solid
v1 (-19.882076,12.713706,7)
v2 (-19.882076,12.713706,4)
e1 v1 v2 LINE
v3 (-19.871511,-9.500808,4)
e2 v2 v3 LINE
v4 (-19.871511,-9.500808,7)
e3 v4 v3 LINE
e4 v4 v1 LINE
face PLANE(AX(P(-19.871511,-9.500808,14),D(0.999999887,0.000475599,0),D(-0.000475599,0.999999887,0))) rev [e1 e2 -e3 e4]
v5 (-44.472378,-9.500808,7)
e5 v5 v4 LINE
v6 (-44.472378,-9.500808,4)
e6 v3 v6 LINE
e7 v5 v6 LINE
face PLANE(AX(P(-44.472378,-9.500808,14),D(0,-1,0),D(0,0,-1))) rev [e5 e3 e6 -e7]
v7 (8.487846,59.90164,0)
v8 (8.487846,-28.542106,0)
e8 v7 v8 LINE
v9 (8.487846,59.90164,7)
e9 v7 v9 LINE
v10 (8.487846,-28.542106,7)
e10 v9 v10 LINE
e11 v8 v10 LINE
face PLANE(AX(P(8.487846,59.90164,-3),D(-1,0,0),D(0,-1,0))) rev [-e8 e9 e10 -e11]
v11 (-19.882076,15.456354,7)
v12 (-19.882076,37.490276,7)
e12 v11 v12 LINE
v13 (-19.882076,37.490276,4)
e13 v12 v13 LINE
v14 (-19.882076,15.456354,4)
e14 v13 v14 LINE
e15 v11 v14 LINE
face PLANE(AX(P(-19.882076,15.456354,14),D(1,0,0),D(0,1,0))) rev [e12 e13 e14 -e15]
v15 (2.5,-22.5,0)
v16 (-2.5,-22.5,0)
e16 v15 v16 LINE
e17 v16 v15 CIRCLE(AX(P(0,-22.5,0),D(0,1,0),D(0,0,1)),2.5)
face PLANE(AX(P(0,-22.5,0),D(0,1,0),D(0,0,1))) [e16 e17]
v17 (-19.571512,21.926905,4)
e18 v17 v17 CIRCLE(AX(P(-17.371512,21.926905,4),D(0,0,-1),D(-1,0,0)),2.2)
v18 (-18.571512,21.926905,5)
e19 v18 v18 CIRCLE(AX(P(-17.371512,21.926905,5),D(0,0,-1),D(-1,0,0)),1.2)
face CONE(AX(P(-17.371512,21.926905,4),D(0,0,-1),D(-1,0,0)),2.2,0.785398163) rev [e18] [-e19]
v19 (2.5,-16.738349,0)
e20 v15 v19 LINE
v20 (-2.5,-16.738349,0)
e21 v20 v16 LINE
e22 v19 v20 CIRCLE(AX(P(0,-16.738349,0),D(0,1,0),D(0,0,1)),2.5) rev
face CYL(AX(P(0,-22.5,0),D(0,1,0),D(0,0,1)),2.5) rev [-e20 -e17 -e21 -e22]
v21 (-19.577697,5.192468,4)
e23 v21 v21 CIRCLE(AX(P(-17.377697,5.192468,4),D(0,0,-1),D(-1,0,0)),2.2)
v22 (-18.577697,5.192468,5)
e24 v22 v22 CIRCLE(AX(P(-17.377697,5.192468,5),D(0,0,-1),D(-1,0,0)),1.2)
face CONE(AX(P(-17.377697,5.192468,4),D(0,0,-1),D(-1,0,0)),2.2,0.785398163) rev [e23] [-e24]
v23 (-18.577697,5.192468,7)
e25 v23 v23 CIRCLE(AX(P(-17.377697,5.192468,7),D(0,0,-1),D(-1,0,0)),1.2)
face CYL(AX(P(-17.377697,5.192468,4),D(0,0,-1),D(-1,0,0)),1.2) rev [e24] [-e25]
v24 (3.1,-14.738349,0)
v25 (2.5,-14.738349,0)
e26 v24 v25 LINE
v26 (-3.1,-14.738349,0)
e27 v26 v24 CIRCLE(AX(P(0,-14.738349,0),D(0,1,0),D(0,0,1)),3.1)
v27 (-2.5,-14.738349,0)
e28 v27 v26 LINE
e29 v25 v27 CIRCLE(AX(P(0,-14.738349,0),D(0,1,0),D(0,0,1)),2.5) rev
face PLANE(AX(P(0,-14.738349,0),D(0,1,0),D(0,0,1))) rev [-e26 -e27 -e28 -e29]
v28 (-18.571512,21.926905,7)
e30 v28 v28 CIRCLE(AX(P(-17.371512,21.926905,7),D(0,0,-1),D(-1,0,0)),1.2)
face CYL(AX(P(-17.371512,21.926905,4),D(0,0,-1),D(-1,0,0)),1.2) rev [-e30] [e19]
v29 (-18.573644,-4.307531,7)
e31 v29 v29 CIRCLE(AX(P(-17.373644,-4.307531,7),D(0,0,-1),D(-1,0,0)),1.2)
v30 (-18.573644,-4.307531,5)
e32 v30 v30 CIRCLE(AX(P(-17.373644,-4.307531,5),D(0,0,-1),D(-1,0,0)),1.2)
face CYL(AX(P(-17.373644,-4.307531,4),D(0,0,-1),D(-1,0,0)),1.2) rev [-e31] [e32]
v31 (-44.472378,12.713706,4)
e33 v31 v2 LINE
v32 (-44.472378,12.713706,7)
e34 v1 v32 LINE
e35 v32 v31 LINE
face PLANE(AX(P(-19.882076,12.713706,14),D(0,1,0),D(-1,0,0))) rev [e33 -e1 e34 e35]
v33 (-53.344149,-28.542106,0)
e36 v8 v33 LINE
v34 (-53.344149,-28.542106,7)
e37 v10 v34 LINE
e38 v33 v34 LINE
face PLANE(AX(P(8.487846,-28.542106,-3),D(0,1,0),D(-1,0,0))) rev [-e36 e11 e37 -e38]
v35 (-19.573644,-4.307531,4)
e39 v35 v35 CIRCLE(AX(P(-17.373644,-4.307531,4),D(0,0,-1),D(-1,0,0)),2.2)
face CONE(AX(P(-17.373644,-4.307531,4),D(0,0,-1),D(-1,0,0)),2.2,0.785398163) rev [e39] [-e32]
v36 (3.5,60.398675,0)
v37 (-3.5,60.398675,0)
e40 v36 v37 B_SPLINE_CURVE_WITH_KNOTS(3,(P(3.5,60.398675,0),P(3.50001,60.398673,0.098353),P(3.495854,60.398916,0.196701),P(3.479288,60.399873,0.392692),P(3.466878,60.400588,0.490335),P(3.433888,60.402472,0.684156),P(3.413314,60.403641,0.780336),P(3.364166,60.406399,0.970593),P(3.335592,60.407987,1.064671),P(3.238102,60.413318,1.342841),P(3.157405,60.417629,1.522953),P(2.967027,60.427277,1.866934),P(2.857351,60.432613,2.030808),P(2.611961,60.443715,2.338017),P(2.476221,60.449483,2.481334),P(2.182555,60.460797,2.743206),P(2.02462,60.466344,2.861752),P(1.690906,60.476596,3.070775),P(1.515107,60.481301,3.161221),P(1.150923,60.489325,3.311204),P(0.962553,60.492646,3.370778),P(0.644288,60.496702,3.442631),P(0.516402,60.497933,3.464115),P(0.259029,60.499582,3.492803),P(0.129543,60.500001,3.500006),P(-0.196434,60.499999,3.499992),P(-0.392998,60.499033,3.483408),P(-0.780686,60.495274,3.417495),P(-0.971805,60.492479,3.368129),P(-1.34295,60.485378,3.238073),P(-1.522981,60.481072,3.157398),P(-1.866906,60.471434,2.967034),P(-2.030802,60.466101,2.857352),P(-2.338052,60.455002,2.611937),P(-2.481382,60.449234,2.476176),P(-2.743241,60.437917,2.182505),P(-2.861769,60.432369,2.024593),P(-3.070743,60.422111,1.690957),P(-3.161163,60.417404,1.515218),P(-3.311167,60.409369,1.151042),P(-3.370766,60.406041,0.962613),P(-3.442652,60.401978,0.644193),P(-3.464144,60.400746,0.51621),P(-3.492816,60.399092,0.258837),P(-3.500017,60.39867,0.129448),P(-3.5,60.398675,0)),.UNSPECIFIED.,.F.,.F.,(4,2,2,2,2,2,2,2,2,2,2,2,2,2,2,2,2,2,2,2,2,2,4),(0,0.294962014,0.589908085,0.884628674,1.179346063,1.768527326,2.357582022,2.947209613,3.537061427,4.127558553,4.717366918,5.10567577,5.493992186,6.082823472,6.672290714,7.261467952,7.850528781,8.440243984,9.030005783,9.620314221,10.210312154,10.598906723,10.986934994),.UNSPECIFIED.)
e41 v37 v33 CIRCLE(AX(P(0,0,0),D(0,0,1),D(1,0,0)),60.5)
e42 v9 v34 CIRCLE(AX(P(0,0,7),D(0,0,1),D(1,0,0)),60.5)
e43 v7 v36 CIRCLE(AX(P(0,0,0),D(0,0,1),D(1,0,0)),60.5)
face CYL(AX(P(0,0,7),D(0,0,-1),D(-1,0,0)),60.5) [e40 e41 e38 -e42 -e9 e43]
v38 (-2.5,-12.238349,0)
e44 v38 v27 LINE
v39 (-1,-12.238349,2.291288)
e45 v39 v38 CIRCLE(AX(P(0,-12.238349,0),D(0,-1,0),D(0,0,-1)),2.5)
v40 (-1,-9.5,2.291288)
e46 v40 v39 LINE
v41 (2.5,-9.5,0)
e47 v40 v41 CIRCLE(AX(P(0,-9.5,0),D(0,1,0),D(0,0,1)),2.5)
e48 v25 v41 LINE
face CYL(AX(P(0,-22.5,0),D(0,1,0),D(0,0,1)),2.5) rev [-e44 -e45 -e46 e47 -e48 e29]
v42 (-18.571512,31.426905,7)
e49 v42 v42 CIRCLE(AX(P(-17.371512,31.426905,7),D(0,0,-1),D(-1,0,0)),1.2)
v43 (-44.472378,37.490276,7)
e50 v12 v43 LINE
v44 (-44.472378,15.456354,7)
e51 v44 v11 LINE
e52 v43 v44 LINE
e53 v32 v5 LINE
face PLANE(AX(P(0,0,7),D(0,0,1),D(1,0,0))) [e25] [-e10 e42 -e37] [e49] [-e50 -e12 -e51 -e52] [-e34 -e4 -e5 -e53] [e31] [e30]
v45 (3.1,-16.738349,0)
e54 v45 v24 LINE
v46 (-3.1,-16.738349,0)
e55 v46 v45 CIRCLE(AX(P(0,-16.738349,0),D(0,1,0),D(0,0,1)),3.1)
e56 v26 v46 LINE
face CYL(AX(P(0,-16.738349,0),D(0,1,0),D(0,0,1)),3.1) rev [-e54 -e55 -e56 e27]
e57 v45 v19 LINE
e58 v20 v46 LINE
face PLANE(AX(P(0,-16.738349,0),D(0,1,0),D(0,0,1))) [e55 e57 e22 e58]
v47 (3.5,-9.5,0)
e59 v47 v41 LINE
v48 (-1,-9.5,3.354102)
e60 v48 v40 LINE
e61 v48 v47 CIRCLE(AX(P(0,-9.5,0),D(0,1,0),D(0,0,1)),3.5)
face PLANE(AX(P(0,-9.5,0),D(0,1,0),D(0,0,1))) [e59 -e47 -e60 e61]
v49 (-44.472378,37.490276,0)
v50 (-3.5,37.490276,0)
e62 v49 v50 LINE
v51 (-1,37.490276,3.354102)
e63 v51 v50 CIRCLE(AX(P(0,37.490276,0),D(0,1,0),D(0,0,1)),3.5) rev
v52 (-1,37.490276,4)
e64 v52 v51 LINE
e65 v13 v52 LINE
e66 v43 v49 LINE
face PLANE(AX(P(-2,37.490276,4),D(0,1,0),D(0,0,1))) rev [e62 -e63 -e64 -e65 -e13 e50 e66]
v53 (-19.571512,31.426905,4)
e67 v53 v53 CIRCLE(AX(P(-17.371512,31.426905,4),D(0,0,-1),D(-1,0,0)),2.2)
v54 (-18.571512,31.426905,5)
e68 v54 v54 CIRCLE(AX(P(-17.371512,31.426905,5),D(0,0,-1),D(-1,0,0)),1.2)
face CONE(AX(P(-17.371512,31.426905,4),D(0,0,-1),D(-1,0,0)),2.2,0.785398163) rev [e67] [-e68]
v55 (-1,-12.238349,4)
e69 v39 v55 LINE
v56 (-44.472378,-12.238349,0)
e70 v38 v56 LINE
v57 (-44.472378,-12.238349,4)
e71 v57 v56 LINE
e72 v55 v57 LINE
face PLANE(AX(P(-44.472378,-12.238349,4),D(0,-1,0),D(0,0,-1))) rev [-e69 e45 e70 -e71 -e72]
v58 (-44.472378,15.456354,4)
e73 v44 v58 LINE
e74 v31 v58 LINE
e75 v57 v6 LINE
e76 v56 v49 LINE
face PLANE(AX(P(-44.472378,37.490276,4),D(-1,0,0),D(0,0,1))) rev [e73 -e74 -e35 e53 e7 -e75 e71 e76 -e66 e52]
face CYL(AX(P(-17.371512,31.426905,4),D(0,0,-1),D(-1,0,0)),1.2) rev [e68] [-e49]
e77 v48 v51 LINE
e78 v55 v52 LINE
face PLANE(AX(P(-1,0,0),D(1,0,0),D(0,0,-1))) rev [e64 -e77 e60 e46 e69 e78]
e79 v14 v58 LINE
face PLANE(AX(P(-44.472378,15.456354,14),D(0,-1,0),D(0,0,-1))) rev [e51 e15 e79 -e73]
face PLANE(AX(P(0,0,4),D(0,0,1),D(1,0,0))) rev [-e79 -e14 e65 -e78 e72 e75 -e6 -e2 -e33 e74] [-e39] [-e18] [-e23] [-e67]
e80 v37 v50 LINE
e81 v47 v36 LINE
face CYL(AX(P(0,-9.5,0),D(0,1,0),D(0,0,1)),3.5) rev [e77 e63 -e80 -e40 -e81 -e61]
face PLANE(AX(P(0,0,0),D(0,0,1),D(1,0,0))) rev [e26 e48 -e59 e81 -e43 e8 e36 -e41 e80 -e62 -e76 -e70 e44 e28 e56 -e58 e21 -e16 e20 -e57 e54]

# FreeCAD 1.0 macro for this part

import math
import FreeCAD as App
import Part
import Sketcher
from FreeCAD import Vector

doc = App.newDocument("Part")
body = doc.addObject("PartDesign::Body", "Body")

# Sketch on XY plane
sketch1 = body.newObject("Sketcher::SketchObject", "Sketch")
sketch1.AttachmentSupport = (doc.getObject("XY_Plane"), [""])
sketch1.MapMode = "FlatFace"
sketch1.addGeometry(Part.Circle(Vector(0, 0, 0), Vector(0, 0, 1), 60.5), False)
sketch1.addConstraint(Sketcher.Constraint("Coincident", 0, 3, -1, 1))
sketch1.addConstraint(Sketcher.Constraint("Diameter", 0, 121.0))
pad1 = body.newObject("PartDesign::Pad", "Pad")
pad1.Profile = sketch1
pad1.Length = 7

# Sketch on XZ plane
sketch2 = body.newObject("Sketcher::SketchObject", "Sketch001")
sketch2.AttachmentSupport = (doc.getObject("XZ_Plane"), [""])
sketch2.MapMode = "FlatFace"
sketch2.AttachmentOffset = App.Placement(Vector(0, 0, -60.5), App.Rotation())
sketch2.addGeometry(Part.Circle(Vector(0, 0, 0), Vector(0, 0, 1), 3.5), False)
sketch2.addConstraint(Sketcher.Constraint("Coincident", 0, 3, -1, 1))
sketch2.addConstraint(Sketcher.Constraint("Diameter", 0, 7.0))
pocket1 = body.newObject("PartDesign::Pocket", "Pocket")
pocket1.Profile = sketch2
pocket1.Length = 70
pocket1.Reversed = True

# Sketch on XY plane
sketch3 = body.newObject("Sketcher::SketchObject", "Sketch002")
sketch3.AttachmentSupport = (doc.getObject("XY_Plane"), [""])
sketch3.MapMode = "FlatFace"
sketch3.AttachmentOffset = App.Placement(Vector(0, 0, 7), App.Rotation())
sketch3.addGeometry(Part.LineSegment(Vector(8.487846, 59.90164, 0), Vector(8.487846, -28.542106, 0)), False)
sketch3.addGeometry(Part.LineSegment(Vector(8.487846, -28.542106, 0), Vector(-53.344149, -28.542106, 0)), False)
sketch3.addGeometry(Part.ArcOfCircle(Part.Circle(Vector(38.066058, -26.6124, 0), Vector(0, 0, 1), 91.430573), math.radians(-178.790643), math.radians(108.875002)), False)
sketch3.addConstraint(Sketcher.Constraint("Coincident", 0, 2, 1, 1))
sketch3.addConstraint(Sketcher.Constraint("Coincident", 1, 2, 2, 1))
sketch3.addConstraint(Sketcher.Constraint("Coincident", 2, 2, 0, 1))
sketch3.addConstraint(Sketcher.Constraint("Vertical", 0))
sketch3.addConstraint(Sketcher.Constraint("Horizontal", 1))
sketch3.addConstraint(Sketcher.Constraint("Radius", 2, 91.430573))
sketch3.addConstraint(Sketcher.Constraint("DistanceY", 2, 3, -1, 1, 26.6124))
sketch3.addConstraint(Sketcher.Constraint("DistanceX", 1, 2, 1, 1, 61.831995))
sketch3.addConstraint(Sketcher.Constraint("DistanceY", 0, 2, 0, 1, 88.443746))
sketch3.addConstraint(Sketcher.Constraint("DistanceX", -1, 1, 2, 3, 38.066058))
pocket2 = body.newObject("PartDesign::Pocket", "Pocket001")
pocket2.Profile = sketch3
pocket2.Length = 10

# Sketch on XY plane
sketch4 = body.newObject("Sketcher::SketchObject", "Sketch003")
sketch4.AttachmentSupport = (doc.getObject("XY_Plane"), [""])
sketch4.MapMode = "FlatFace"
sketch4.addGeometry(Part.LineSegment(Vector(-44.472378, -12.238349, 0), Vector(-44.472378, 37.490276, 0)), False)
sketch4.addGeometry(Part.LineSegment(Vector(-44.472378, 37.490276, 0), Vector(-2, 37.490276, 0)), False)
sketch4.addGeometry(Part.LineSegment(Vector(-2, 37.490276, 0), Vector(-2, -12.238349, 0)), False)
sketch4.addGeometry(Part.LineSegment(Vector(-2, -12.238349, 0), Vector(-44.472378, -12.238349, 0)), False)
sketch4.addConstraint(Sketcher.Constraint("Coincident", 0, 2, 1, 1))
sketch4.addConstraint(Sketcher.Constraint("Coincident", 1, 2, 2, 1))
sketch4.addConstraint(Sketcher.Constraint("Coincident", 2, 2, 3, 1))
sketch4.addConstraint(Sketcher.Constraint("Coincident", 3, 2, 0, 1))
sketch4.addConstraint(Sketcher.Constraint("Vertical", 0))
sketch4.addConstraint(Sketcher.Constraint("Horizontal", 1))
sketch4.addConstraint(Sketcher.Constraint("Vertical", 2))
sketch4.addConstraint(Sketcher.Constraint("Horizontal", 3))
sketch4.addConstraint(Sketcher.Constraint("DistanceX", 1, 2, -1, 1, 2.0))
sketch4.addConstraint(Sketcher.Constraint("DistanceX", 1, 1, 1, 2, 42.472378))
sketch4.addConstraint(Sketcher.Constraint("DistanceY", 0, 1, 0, 2, 49.728625))
sketch4.addConstraint(Sketcher.Constraint("DistanceY", 2, 2, -1, 1, 12.238349))
pocket3 = body.newObject("PartDesign::Pocket", "Pocket002")
pocket3.Profile = sketch4
pocket3.Length = 4
pocket3.Reversed = True

# Sketch on YZ plane
sketch5 = body.newObject("Sketcher::SketchObject", "Sketch004")
sketch5.AttachmentSupport = (doc.getObject("YZ_Plane"), [""])
sketch5.MapMode = "FlatFace"
sketch5.AttachmentOffset = App.Placement(Vector(0, 0, -2), App.Rotation())
sketch5.addGeometry(Part.LineSegment(Vector(37.490276, 4, 0), Vector(37.490276, 2.872281, 0)), False)
sketch5.addGeometry(Part.LineSegment(Vector(37.490276, 2.872281, 0), Vector(-12.238349, 2.872281, 0)), False)
sketch5.addGeometry(Part.LineSegment(Vector(-12.238349, 2.872281, 0), Vector(-12.238349, 4, 0)), False)
sketch5.addGeometry(Part.LineSegment(Vector(-12.238349, 4, 0), Vector(37.490276, 4, 0)), False)
sketch5.addConstraint(Sketcher.Constraint("Coincident", 0, 2, 1, 1))
sketch5.addConstraint(Sketcher.Constraint("Coincident", 1, 2, 2, 1))
sketch5.addConstraint(Sketcher.Constraint("Coincident", 2, 2, 3, 1))
sketch5.addConstraint(Sketcher.Constraint("Coincident", 3, 2, 0, 1))
sketch5.addConstraint(Sketcher.Constraint("Vertical", 0))
sketch5.addConstraint(Sketcher.Constraint("Horizontal", 1))
sketch5.addConstraint(Sketcher.Constraint("Vertical", 2))
sketch5.addConstraint(Sketcher.Constraint("Horizontal", 3))
sketch5.addConstraint(Sketcher.Constraint("DistanceY", -1, 1, 2, 2, 4.0))
sketch5.addConstraint(Sketcher.Constraint("DistanceY", 0, 2, 0, 1, 1.127719))
sketch5.addConstraint(Sketcher.Constraint("DistanceX", 1, 2, 1, 1, 49.728625))
sketch5.addConstraint(Sketcher.Constraint("DistanceX", 1, 2, -1, 1, 12.238349))
pocket4 = body.newObject("PartDesign::Pocket", "Pocket003")
pocket4.Profile = sketch5
pocket4.Length = 1
pocket4.Reversed = True

# Sketch on XY plane
sketch6 = body.newObject("Sketcher::SketchObject", "Sketch005")
sketch6.AttachmentSupport = (doc.getObject("XY_Plane"), [""])
sketch6.MapMode = "FlatFace"
sketch6.AttachmentOffset = App.Placement(Vector(0, 0, 4), App.Rotation())
sketch6.addGeometry(Part.Circle(Vector(-17.373644, -4.307531, 0), Vector(0, 0, 1), 1.2), False)
sketch6.addGeometry(Part.Circle(Vector(-17.377697, 5.192468, 0), Vector(0, 0, 1), 1.2), False)
sketch6.addGeometry(Part.Circle(Vector(-17.371512, 21.926905, 0), Vector(0, 0, 1), 1.2), False)
sketch6.addGeometry(Part.Circle(Vector(-17.371512, 31.426905, 0), Vector(0, 0, 1), 1.2), False)
sketch6.addConstraint(Sketcher.Constraint("Equal", 0, 1))
sketch6.addConstraint(Sketcher.Constraint("Equal", 1, 2))
sketch6.addConstraint(Sketcher.Constraint("Equal", 2, 3))
sketch6.addConstraint(Sketcher.Constraint("Vertical", 2, 3, 3, 3))
sketch6.addConstraint(Sketcher.Constraint("Diameter", 0, 2.4))
sketch6.addConstraint(Sketcher.Constraint("DistanceY", 0, 3, 1, 3, 9.499999))
sketch6.addConstraint(Sketcher.Constraint("DistanceY", 2, 3, 3, 3, 9.5))
sketch6.addConstraint(Sketcher.Constraint("DistanceY", 0, 3, -1, 1, 4.307531))
sketch6.addConstraint(Sketcher.Constraint("DistanceX", 0, 3, 2, 3, 0.002132))
sketch6.addConstraint(Sketcher.Constraint("DistanceX", 0, 3, -1, 1, 17.373644))
sketch6.addConstraint(Sketcher.Constraint("DistanceX", 1, 3, -1, 1, 17.377697))
sketch6.addConstraint(Sketcher.Constraint("DistanceY", -1, 1, 2, 3, 21.926905))
doc.recompute()
hole = body.newObject("PartDesign::Hole", "Hole")
hole.Profile = sketch6
hole.ThreadType = "None"
hole.Diameter = 2.4
hole.DepthType = "ThroughAll"
hole.HoleCutType = "Countersink"
hole.HoleCutDiameter = 4.4
hole.HoleCutCountersinkAngle = 90
hole.Reversed = True

# Sketch on XY plane
sketch7 = body.newObject("Sketcher::SketchObject", "Sketch006")
sketch7.AttachmentSupport = (doc.getObject("XY_Plane"), [""])
sketch7.MapMode = "FlatFace"
sketch7.AttachmentOffset = App.Placement(Vector(0, 0, 4), App.Rotation())
sketch7.addGeometry(Part.LineSegment(Vector(-44.472378, 15.456354, 0), Vector(-44.472378, 37.490276, 0)), False)
sketch7.addGeometry(Part.LineSegment(Vector(-44.472378, 37.490276, 0), Vector(-19.882076, 37.490276, 0)), False)
sketch7.addGeometry(Part.LineSegment(Vector(-19.882076, 37.490276, 0), Vector(-19.882076, 15.456354, 0)), False)
sketch7.addGeometry(Part.LineSegment(Vector(-19.882076, 15.456354, 0), Vector(-44.472378, 15.456354, 0)), False)
sketch7.addGeometry(Part.LineSegment(Vector(-44.472378, 12.713706, 0), Vector(-19.882076, 12.713706, 0)), False)
sketch7.addGeometry(Part.LineSegment(Vector(-19.882076, 12.713706, 0), Vector(-19.871511, -9.500808, 0)), False)
sketch7.addGeometry(Part.LineSegment(Vector(-19.871511, -9.500808, 0), Vector(-44.472378, -9.500808, 0)), False)
sketch7.addGeometry(Part.LineSegment(Vector(-44.472378, -9.500808, 0), Vector(-44.472378, 12.713706, 0)), False)
sketch7.addConstraint(Sketcher.Constraint("Coincident", 0, 2, 1, 1))
sketch7.addConstraint(Sketcher.Constraint("Coincident", 1, 2, 2, 1))
sketch7.addConstraint(Sketcher.Constraint("Coincident", 2, 2, 3, 1))
sketch7.addConstraint(Sketcher.Constraint("Coincident", 3, 2, 0, 1))
sketch7.addConstraint(Sketcher.Constraint("Coincident", 4, 2, 5, 1))
sketch7.addConstraint(Sketcher.Constraint("Coincident", 5, 2, 6, 1))
sketch7.addConstraint(Sketcher.Constraint("Coincident", 6, 2, 7, 1))
sketch7.addConstraint(Sketcher.Constraint("Coincident", 7, 2, 4, 1))
sketch7.addConstraint(Sketcher.Constraint("Vertical", 0))
sketch7.addConstraint(Sketcher.Constraint("Horizontal", 1))
sketch7.addConstraint(Sketcher.Constraint("Vertical", 2))
sketch7.addConstraint(Sketcher.Constraint("Horizontal", 3))
sketch7.addConstraint(Sketcher.Constraint("Horizontal", 4))
sketch7.addConstraint(Sketcher.Constraint("Horizontal", 6))
sketch7.addConstraint(Sketcher.Constraint("Vertical", 7))
sketch7.addConstraint(Sketcher.Constraint("Vertical", 2, 2, 4, 2))
sketch7.addConstraint(Sketcher.Constraint("Vertical", 3, 2, 6, 2))
sketch7.addConstraint(Sketcher.Constraint("DistanceX", 1, 1, 1, 2, 24.590302))
sketch7.addConstraint(Sketcher.Constraint("DistanceY", 0, 1, 0, 2, 22.033921))
sketch7.addConstraint(Sketcher.Constraint("DistanceX", 6, 2, 6, 1, 24.600867))
sketch7.addConstraint(Sketcher.Constraint("DistanceY", 7, 1, 7, 2, 22.214513))
sketch7.addConstraint(Sketcher.Constraint("DistanceX", 5, 2, -1, 1, 19.871511))
sketch7.addConstraint(Sketcher.Constraint("DistanceY", 4, 2, 2, 2, 2.742649))
sketch7.addConstraint(Sketcher.Constraint("DistanceY", -1, 1, 0, 2, 37.490276))
pocket5 = body.newObject("PartDesign::Pocket", "Pocket004")
pocket5.Profile = sketch7
pocket5.Length = 10
pocket5.Reversed = True

# Sketch on XZ plane
sketch8 = body.newObject("Sketcher::SketchObject", "Sketch007")
sketch8.AttachmentSupport = (doc.getObject("XZ_Plane"), [""])
sketch8.MapMode = "FlatFace"
sketch8.AttachmentOffset = App.Placement(Vector(0, 0, 9.5), App.Rotation())
sketch8.addGeometry(Part.Circle(Vector(0, 0, 0), Vector(0, 0, 1), 2.5), False)
sketch8.addConstraint(Sketcher.Constraint("Coincident", 0, 3, -1, 1))
sketch8.addConstraint(Sketcher.Constraint("Diameter", 0, 5.0))
pocket6 = body.newObject("PartDesign::Pocket", "Pocket005")
pocket6.Profile = sketch8
pocket6.Length = 13
pocket6.Reversed = True

# Sketch on XZ plane
sketch9 = body.newObject("Sketcher::SketchObject", "Sketch008")
sketch9.AttachmentSupport = (doc.getObject("XZ_Plane"), [""])
sketch9.MapMode = "FlatFace"
sketch9.AttachmentOffset = App.Placement(Vector(0, 0, 15.738349), App.Rotation())
sketch9.addGeometry(Part.Circle(Vector(0, 0, 0), Vector(0, 0, 1), 3.1), False)
sketch9.addConstraint(Sketcher.Constraint("Coincident", 0, 3, -1, 1))
sketch9.addConstraint(Sketcher.Constraint("Diameter", 0, 6.2))
pocket7 = body.newObject("PartDesign::Pocket", "Pocket006")
pocket7.Profile = sketch9
pocket7.Length = 2
pocket7.Midplane = True

# Sketch on YZ plane
sketch10 = body.newObject("Sketcher::SketchObject", "Sketch009")
sketch10.AttachmentSupport = (doc.getObject("YZ_Plane"), [""])
sketch10.MapMode = "FlatFace"
sketch10.AttachmentOffset = App.Placement(Vector(0, 0, -2), App.Rotation())
sketch10.addGeometry(Part.LineSegment(Vector(-9.5, 2.872281, 0), Vector(-9.5, 1.5, 0)), False)
sketch10.addGeometry(Part.LineSegment(Vector(-9.5, 1.5, 0), Vector(-12.238349, 1.5, 0)), False)
sketch10.addGeometry(Part.LineSegment(Vector(-12.238349, 1.5, 0), Vector(-12.238349, 2.872281, 0)), False)
sketch10.addGeometry(Part.LineSegment(Vector(-12.238349, 2.872281, 0), Vector(-9.5, 2.872281, 0)), False)
sketch10.addConstraint(Sketcher.Constraint("Coincident", 0, 2, 1, 1))
sketch10.addConstraint(Sketcher.Constraint("Coincident", 1, 2, 2, 1))
sketch10.addConstraint(Sketcher.Constraint("Coincident", 2, 2, 3, 1))
sketch10.addConstraint(Sketcher.Constraint("Coincident", 3, 2, 0, 1))
sketch10.addConstraint(Sketcher.Constraint("Vertical", 0))
sketch10.addConstraint(Sketcher.Constraint("Horizontal", 1))
sketch10.addConstraint(Sketcher.Constraint("Vertical", 2))
sketch10.addConstraint(Sketcher.Constraint("Horizontal", 3))
sketch10.addConstraint(Sketcher.Constraint("DistanceX", 0, 2, -1, 1, 9.5))
sketch10.addConstraint(Sketcher.Constraint("DistanceY", -1, 1, 0, 2, 1.5))
sketch10.addConstraint(Sketcher.Constraint("DistanceX", 1, 2, 1, 1, 2.738349))
sketch10.addConstraint(Sketcher.Constraint("DistanceY", 0, 2, 0, 1, 1.372281))
pocket8 = body.newObject("PartDesign::Pocket", "Pocket007")
pocket8.Profile = sketch10
pocket8.Length = 1
pocket8.Reversed = True

doc.recompute()
